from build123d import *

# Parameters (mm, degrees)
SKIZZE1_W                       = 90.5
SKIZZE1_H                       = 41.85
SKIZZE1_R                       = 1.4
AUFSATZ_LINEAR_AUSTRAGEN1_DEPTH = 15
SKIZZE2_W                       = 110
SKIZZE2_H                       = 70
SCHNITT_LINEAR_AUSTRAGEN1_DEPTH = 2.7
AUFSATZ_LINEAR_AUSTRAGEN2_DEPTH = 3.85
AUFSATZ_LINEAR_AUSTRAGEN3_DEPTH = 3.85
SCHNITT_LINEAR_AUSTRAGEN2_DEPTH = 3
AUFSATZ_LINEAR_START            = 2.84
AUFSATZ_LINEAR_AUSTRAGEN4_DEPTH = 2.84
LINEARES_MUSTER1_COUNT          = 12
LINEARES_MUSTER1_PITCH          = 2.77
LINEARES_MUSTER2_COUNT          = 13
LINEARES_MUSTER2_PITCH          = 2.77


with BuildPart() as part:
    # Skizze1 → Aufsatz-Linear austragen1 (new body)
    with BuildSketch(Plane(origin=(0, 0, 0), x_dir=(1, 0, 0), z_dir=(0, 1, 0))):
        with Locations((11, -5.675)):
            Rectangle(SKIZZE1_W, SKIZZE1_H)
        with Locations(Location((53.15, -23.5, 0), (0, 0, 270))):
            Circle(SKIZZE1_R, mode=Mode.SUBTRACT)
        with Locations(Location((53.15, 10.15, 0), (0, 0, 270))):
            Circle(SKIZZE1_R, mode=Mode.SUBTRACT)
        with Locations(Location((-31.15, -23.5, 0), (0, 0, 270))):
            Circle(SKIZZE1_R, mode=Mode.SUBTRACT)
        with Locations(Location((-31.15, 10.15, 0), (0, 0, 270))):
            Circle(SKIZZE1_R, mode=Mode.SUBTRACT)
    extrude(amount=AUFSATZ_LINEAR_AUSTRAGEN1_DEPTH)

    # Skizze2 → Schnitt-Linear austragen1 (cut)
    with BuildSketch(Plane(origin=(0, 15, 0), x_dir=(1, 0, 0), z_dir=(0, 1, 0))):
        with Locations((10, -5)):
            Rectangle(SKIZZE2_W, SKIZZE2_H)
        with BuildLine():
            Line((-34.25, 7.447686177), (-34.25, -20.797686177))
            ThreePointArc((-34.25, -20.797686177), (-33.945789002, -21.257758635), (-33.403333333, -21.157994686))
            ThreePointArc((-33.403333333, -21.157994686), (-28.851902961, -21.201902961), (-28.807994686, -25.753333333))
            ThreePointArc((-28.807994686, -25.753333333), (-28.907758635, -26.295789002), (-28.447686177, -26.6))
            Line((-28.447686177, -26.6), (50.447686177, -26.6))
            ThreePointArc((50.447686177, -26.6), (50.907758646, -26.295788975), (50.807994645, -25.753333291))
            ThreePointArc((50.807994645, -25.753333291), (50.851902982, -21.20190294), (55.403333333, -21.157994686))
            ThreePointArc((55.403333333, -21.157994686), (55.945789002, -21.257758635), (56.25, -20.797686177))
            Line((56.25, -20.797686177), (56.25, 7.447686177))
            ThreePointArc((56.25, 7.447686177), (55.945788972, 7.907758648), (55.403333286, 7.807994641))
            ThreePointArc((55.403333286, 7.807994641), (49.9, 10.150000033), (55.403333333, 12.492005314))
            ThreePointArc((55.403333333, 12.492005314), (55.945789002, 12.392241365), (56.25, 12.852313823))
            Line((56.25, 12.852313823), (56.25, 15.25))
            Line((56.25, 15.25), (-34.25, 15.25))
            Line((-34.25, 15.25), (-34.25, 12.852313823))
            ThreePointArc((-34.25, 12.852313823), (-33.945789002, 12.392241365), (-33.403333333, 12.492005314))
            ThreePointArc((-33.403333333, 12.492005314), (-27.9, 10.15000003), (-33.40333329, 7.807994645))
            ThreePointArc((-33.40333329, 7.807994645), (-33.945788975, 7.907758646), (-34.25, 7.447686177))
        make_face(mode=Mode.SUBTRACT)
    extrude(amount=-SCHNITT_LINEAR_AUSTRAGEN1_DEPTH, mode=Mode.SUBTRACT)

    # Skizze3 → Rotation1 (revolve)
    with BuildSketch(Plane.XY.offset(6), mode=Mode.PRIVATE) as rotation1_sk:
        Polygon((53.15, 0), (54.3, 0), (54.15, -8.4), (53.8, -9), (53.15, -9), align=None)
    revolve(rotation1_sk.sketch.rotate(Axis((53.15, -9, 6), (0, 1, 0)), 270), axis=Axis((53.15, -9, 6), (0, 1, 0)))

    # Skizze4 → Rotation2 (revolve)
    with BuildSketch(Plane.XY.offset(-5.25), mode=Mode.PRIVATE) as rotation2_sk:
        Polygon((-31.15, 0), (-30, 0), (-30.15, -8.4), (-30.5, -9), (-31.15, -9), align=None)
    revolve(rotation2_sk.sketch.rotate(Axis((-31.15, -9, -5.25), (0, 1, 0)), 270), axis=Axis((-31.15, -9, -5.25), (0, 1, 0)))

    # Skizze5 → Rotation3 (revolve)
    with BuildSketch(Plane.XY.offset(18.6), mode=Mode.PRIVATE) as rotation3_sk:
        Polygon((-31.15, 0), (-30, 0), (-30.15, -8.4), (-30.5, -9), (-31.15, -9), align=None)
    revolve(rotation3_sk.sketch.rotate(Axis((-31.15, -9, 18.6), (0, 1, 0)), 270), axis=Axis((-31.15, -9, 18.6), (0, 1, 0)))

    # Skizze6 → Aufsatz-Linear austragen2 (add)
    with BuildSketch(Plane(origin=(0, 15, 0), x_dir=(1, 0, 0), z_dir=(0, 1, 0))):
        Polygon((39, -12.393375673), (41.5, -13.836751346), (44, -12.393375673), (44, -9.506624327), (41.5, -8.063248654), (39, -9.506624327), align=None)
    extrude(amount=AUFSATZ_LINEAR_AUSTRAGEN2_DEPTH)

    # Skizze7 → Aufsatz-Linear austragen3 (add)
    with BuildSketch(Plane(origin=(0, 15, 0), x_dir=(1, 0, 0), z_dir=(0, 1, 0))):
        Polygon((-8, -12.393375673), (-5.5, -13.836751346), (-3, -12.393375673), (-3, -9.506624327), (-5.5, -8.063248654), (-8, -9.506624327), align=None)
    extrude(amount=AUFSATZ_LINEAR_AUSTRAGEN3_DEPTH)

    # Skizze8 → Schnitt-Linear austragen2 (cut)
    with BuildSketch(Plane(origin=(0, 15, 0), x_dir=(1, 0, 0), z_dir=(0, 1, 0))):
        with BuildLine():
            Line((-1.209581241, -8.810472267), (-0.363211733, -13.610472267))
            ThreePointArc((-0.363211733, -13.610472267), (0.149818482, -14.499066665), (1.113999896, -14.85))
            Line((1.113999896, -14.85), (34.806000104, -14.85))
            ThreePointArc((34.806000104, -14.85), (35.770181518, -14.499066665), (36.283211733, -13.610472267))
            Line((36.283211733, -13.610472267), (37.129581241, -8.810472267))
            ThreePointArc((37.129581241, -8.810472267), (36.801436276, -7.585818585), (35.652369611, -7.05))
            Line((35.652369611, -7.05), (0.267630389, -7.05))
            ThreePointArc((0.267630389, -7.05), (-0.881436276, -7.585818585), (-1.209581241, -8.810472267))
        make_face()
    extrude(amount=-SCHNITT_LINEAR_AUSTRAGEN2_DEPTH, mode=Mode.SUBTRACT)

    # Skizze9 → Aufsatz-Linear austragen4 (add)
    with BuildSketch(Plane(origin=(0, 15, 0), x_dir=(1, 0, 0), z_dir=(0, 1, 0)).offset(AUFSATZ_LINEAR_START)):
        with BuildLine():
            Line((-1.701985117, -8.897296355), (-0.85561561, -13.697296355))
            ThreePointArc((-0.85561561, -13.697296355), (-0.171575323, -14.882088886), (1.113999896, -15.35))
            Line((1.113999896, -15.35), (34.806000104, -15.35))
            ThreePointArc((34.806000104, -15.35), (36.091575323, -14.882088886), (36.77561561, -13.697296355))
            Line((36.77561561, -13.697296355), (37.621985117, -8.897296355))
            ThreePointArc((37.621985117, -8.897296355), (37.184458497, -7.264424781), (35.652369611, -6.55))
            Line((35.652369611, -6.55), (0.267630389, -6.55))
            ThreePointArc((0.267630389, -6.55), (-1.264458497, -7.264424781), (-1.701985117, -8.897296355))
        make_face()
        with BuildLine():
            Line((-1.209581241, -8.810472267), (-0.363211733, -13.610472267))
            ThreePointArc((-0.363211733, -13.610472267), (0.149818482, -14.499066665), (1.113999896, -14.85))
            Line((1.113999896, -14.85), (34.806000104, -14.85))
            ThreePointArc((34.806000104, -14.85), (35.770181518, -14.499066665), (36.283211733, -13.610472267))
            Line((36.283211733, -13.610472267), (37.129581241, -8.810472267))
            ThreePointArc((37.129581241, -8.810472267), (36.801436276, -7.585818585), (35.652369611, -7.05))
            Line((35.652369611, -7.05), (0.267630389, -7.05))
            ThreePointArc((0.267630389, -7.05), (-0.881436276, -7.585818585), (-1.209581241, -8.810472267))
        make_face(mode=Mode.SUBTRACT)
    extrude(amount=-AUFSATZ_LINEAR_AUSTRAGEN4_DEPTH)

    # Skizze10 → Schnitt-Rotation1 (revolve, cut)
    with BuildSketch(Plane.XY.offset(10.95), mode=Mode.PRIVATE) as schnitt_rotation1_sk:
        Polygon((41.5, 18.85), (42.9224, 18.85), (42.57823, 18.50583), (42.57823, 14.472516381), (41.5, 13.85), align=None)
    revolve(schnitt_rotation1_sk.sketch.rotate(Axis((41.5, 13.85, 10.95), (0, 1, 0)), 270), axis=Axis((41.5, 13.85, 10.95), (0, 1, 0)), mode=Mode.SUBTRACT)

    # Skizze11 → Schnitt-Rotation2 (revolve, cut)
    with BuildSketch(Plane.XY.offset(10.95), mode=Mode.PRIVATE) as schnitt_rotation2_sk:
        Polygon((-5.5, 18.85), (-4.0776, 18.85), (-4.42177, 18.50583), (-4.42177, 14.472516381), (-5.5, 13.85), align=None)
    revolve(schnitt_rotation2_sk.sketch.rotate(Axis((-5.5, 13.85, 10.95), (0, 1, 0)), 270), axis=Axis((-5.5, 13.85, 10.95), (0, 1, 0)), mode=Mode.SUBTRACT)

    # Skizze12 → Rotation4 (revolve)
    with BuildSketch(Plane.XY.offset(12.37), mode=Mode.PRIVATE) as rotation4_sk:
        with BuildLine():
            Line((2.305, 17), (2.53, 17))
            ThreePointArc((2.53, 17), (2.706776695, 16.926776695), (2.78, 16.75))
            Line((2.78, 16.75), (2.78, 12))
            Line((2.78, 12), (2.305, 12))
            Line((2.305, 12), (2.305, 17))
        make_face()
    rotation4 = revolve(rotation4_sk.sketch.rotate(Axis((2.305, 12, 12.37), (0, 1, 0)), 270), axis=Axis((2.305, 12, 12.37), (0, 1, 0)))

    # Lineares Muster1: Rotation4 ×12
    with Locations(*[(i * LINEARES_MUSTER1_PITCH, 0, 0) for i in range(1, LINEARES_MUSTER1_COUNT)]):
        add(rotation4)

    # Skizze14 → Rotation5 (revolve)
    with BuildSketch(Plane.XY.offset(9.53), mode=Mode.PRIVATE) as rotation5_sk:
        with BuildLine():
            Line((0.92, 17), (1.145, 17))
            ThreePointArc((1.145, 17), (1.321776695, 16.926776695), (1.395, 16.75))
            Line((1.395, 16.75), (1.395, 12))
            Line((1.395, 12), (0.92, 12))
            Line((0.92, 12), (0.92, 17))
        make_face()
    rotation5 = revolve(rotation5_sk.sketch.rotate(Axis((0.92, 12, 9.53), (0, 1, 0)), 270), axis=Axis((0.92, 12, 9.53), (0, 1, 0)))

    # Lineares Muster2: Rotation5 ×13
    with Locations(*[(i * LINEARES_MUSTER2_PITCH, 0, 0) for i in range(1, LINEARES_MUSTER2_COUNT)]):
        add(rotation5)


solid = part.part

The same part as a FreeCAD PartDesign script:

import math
import FreeCAD as App
import Part
import Sketcher
Q = App.Units.Quantity


def add_polygon(sketch, points):
    """Adds a closed chain of lines whose ends are joined by coincident constraints."""
    first, n = sketch.GeometryCount, len(points)
    for a, b in zip(points, points[1:] + points[:1]):
        sketch.addGeometry(Part.LineSegment(App.Vector(*a, 0), App.Vector(*b, 0)), False)
    for i in range(n):
        sketch.addConstraint(Sketcher.Constraint("Coincident", first + i, 2, first + (i + 1) % n, 1))

doc = App.newDocument("Part")
body = doc.addObject("PartDesign::Body", "Body")

# Sketch on XZ plane
sketch1 = body.newObject("Sketcher::SketchObject", "Sketch")
sketch1.AttachmentSupport = (doc.getObject("XZ_Plane"), [""])
sketch1.MapMode = "FlatFace"
add_polygon(sketch1, [(-34.2, -15.2), (-34.2, 26.6), (56.2, 26.6), (56.2, -15.2)])  # lines 0-3
sketch1.addGeometry(Part.Circle(App.Vector(-31.1, 23.5, 0), App.Vector(0, 0, 1), 1.4), False)  # 4
sketch1.addGeometry(Part.Circle(App.Vector(53.1, 23.5, 0), App.Vector(0, 0, 1), 1.4), False)  # 5
sketch1.addGeometry(Part.Circle(App.Vector(-31.1, -10.2, 0), App.Vector(0, 0, 1), 1.4), False)  # 6
sketch1.addGeometry(Part.Circle(App.Vector(53.1, -10.2, 0), App.Vector(0, 0, 1), 1.4), False)  # 7
sketch1.addConstraint([
    Sketcher.Constraint("Vertical", 0),
    Sketcher.Constraint("Horizontal", 1),
    Sketcher.Constraint("Vertical", 2),
    Sketcher.Constraint("Horizontal", 3),
    Sketcher.Constraint("Equal", 4, 5),
    Sketcher.Constraint("Equal", 5, 6),
    Sketcher.Constraint("Equal", 6, 7),
    Sketcher.Constraint("Horizontal", 4, 3, 5, 3),
    Sketcher.Constraint("Horizontal", 6, 3, 7, 3),
    Sketcher.Constraint("Vertical", 4, 3, 6, 3),
    Sketcher.Constraint("Vertical", 5, 3, 7, 3),
    Sketcher.Constraint("Diameter", 4, Q("2.8 mm")),
    Sketcher.Constraint("DistanceX", 1, 1, 1, 2, Q("90.5 mm")),
    Sketcher.Constraint("DistanceY", 0, 1, 0, 2, Q("41.85 mm")),
    Sketcher.Constraint("DistanceY", -1, 1, 4, 3, Q("23.5 mm")),
    Sketcher.Constraint("DistanceY", -1, 1, 0, 2, Q("26.6 mm")),
    Sketcher.Constraint("DistanceX", 4, 3, 5, 3, Q("84.3 mm")),
    Sketcher.Constraint("DistanceX", 0, 2, 4, 3, Q("3.1 mm")),
    Sketcher.Constraint("DistanceY", 2, 2, 7, 3, Q("5.1 mm")),
    Sketcher.Constraint("DistanceX", 4, 3, -1, 1, Q("31.15 mm")),
])
pad1 = body.newObject("PartDesign::Pad", "Pad")
pad1.Profile = sketch1
pad1.Length = 15
pad1.Reversed = True

# Sketch on XZ plane
sketch2 = body.newObject("Sketcher::SketchObject", "Sketch001")
sketch2.AttachmentSupport = (doc.getObject("XZ_Plane"), [""])
sketch2.MapMode = "FlatFace"
sketch2.AttachmentOffset = App.Placement(App.Vector(0, 0, -15), App.Rotation())
add_polygon(sketch2, [(-45, -30), (-45, 40), (65, 40), (65, -30)])  # lines 0-3
sketch2.addGeometry(Part.LineSegment(App.Vector(-34.2, 20.8, 0), App.Vector(-34.2, -7.4, 0)), False)  # 4
sketch2.addGeometry(Part.ArcOfCircle(Part.Circle(App.Vector(-33.8, -7.4, 0), App.Vector(0, 0, 1), 0.5), math.radians(-180), math.radians(-46)), False)  # 5
sketch2.addGeometry(Part.ArcOfCircle(Part.Circle(App.Vector(-31.1, -10.2, 0), App.Vector(0, 0, 1), 3.2), math.radians(-134), math.radians(134)), False)  # 6
sketch2.addGeometry(Part.ArcOfCircle(Part.Circle(App.Vector(-33.8, -12.9, 0), App.Vector(0, 0, 1), 0.5), math.radians(46), math.radians(180)), False)  # 7
sketch2.addGeometry(Part.LineSegment(App.Vector(-34.2, -12.9, 0), App.Vector(-34.2, -15.2, 0)), False)  # 8
sketch2.addGeometry(Part.LineSegment(App.Vector(-34.2, -15.2, 0), App.Vector(56.2, -15.2, 0)), False)  # 9
sketch2.addGeometry(Part.LineSegment(App.Vector(56.2, -15.2, 0), App.Vector(56.2, -12.9, 0)), False)  # 10
sketch2.addGeometry(Part.ArcOfCircle(Part.Circle(App.Vector(55.8, -12.9, 0), App.Vector(0, 0, 1), 0.5), math.radians(0), math.radians(134)), False)  # 11
sketch2.addGeometry(Part.ArcOfCircle(Part.Circle(App.Vector(53.1, -10.2, 0), App.Vector(0, 0, 1), 3.2), math.radians(46), math.radians(314)), False)  # 12
sketch2.addGeometry(Part.ArcOfCircle(Part.Circle(App.Vector(55.8, -7.4, 0), App.Vector(0, 0, 1), 0.5), math.radians(-134), math.radians(0)), False)  # 13
sketch2.addGeometry(Part.LineSegment(App.Vector(56.2, -7.4, 0), App.Vector(56.2, 20.8, 0)), False)  # 14
sketch2.addGeometry(Part.ArcOfCircle(Part.Circle(App.Vector(55.8, 20.8, 0), App.Vector(0, 0, 1), 0.5), math.radians(0), math.radians(134)), False)  # 15
sketch2.addGeometry(Part.ArcOfCircle(Part.Circle(App.Vector(53.1, 23.5, 0), App.Vector(0, 0, 1), 3.2), math.radians(136), math.radians(314)), False)  # 16
sketch2.addGeometry(Part.ArcOfCircle(Part.Circle(App.Vector(50.4, 26.1, 0), App.Vector(0, 0, 1), 0.5), math.radians(-44), math.radians(90)), False)  # 17
sketch2.addGeometry(Part.LineSegment(App.Vector(50.4, 26.6, 0), App.Vector(-28.4, 26.6, 0)), False)  # 18
sketch2.addGeometry(Part.ArcOfCircle(Part.Circle(App.Vector(-28.4, 26.1, 0), App.Vector(0, 0, 1), 0.5), math.radians(90), math.radians(224)), False)  # 19
sketch2.addGeometry(Part.ArcOfCircle(Part.Circle(App.Vector(-31.1, 23.5, 0), App.Vector(0, 0, 1), 3.2), math.radians(-134), math.radians(44)), False)  # 20
sketch2.addGeometry(Part.ArcOfCircle(Part.Circle(App.Vector(-33.8, 20.8, 0), App.Vector(0, 0, 1), 0.5), math.radians(46), math.radians(180)), False)  # 21
sketch2.addConstraint([
    Sketcher.Constraint("Tangent", 4, 2, 5, 1),
    Sketcher.Constraint("Tangent", 5, 2, 6, 2),
    Sketcher.Constraint("Tangent", 6, 1, 7, 1),
    Sketcher.Constraint("Tangent", 7, 2, 8, 1),
    Sketcher.Constraint("Coincident", 8, 2, 9, 1),
    Sketcher.Constraint("Coincident", 9, 2, 10, 1),
    Sketcher.Constraint("Tangent", 10, 2, 11, 1),
    Sketcher.Constraint("Tangent", 11, 2, 12, 2),
    Sketcher.Constraint("Tangent", 12, 1, 13, 1),
    Sketcher.Constraint("Tangent", 13, 2, 14, 1),
    Sketcher.Constraint("Tangent", 14, 2, 15, 1),
    Sketcher.Constraint("Tangent", 15, 2, 16, 2),
    Sketcher.Constraint("Tangent", 16, 1, 17, 1),
    Sketcher.Constraint("Tangent", 17, 2, 18, 1),
    Sketcher.Constraint("Tangent", 18, 2, 19, 1),
    Sketcher.Constraint("Tangent", 19, 2, 20, 2),
    Sketcher.Constraint("Tangent", 20, 1, 21, 1),
    Sketcher.Constraint("Tangent", 21, 2, 4, 1),
    Sketcher.Constraint("Vertical", 0),
    Sketcher.Constraint("Horizontal", 1),
    Sketcher.Constraint("Vertical", 2),
    Sketcher.Constraint("Horizontal", 3),
    Sketcher.Constraint("Vertical", 4),
    Sketcher.Constraint("Vertical", 8),
    Sketcher.Constraint("Horizontal", 9),
    Sketcher.Constraint("Vertical", 10),
    Sketcher.Constraint("Vertical", 14),
    Sketcher.Constraint("Horizontal", 18),
    Sketcher.Constraint("Equal", 5, 7),
    Sketcher.Constraint("Equal", 7, 11),
    Sketcher.Constraint("Equal", 6, 12),
    Sketcher.Constraint("Equal", 11, 13),
    Sketcher.Constraint("Equal", 13, 15),
    Sketcher.Constraint("Equal", 12, 16),
    Sketcher.Constraint("Equal", 15, 17),
    Sketcher.Constraint("Equal", 17, 19),
    Sketcher.Constraint("Equal", 16, 20),
    Sketcher.Constraint("Equal", 19, 21),
    Sketcher.Constraint("Horizontal", 7, 3, 11, 3),
    Sketcher.Constraint("Horizontal", 6, 3, 12, 3),
    Sketcher.Constraint("Horizontal", 5, 3, 13, 3),
    Sketcher.Constraint("Horizontal", 16, 3, 20, 3),
    Sketcher.Constraint("Horizontal", 15, 3, 21, 3),
    Sketcher.Constraint("Vertical", 5, 3, 7, 3),
    Sketcher.Constraint("Vertical", 12, 3, 16, 3),
    Sketcher.Constraint("Radius", 5, Q("0.5 mm")),
    Sketcher.Constraint("DistanceX", 1, 1, 1, 2, Q("110 mm")),
    Sketcher.Constraint("DistanceY", 0, 1, 0, 2, Q("70 mm")),
    Sketcher.Constraint("Radius", 6, Q("3.25 mm")),
    Sketcher.Constraint("DistanceX", 9, 1, 9, 2, Q("90.5 mm")),
    Sketcher.Constraint("DistanceX", 0, 2, -1, 1, Q("45 mm")),
    Sketcher.Constraint("DistanceY", -1, 1, 0, 2, Q("40 mm")),
    Sketcher.Constraint("DistanceY", -1, 1, 16, 3, Q("23.5 mm")),
    Sketcher.Constraint("DistanceY", -1, 1, 17, 3, Q("26.1 mm")),
    Sketcher.Constraint("DistanceX", 5, 3, 6, 3, Q("2.6 mm")),
    Sketcher.Constraint("DistanceY", 8, 2, 6, 3, Q("5.1 mm")),
    Sketcher.Constraint("DistanceX", 5, 3, -1, 1, Q("33.75 mm")),
    Sketcher.Constraint("DistanceY", 6, 3, -1, 1, Q("10.15 mm")),
])
pocket1 = body.newObject("PartDesign::Pocket", "Pocket")
pocket1.Profile = sketch2
pocket1.Length = 2.7
pocket1.Reversed = True

# Sketch on XY plane
sketch3 = body.newObject("Sketcher::SketchObject", "Sketch002")
sketch3.AttachmentSupport = (doc.getObject("XY_Plane"), [""])
sketch3.MapMode = "FlatFace"
sketch3.AttachmentOffset = App.Placement(App.Vector(0, 0, 6), App.Rotation())
add_polygon(sketch3, [(54.3, 0), (53.1, 0), (53.1, -9), (53.8, -9), (54.1, -8.4)])  # lines 0-4
sketch3.addGeometry(Part.LineSegment(App.Vector(53.1, -9, 0), App.Vector(53.1, 0, 0)), True)  # axis
sketch3.addConstraint([
    Sketcher.Constraint("Horizontal", 0),
    Sketcher.Constraint("Vertical", 1),
    Sketcher.Constraint("Horizontal", 2),
    Sketcher.Constraint("Vertical", 5),
    Sketcher.Constraint("Coincident", 5, 1, 1, 2),
    Sketcher.Constraint("PointOnObject", 0, 2, -1),
    Sketcher.Constraint("PointOnObject", 5, 2, -1),
    Sketcher.Constraint("DistanceY", 1, 2, 1, 1, Q("9 mm")),
    Sketcher.Constraint("DistanceX", 1, 2, 3, 2, Q("1 mm")),
    Sketcher.Constraint("DistanceX", 0, 2, 0, 1, Q("1.15 mm")),
    Sketcher.Constraint("DistanceX", 2, 1, 2, 2, Q("0.65 mm")),
    Sketcher.Constraint("DistanceX", -1, 1, 2, 2, Q("53.8 mm")),
    Sketcher.Constraint("DistanceY", 3, 2, -1, 1, Q("8.4 mm")),
])
revolution = body.newObject("PartDesign::Revolution", "Revolution")
revolution.Profile = sketch3
revolution.ReferenceAxis = (sketch3, ["Axis0"])
revolution.Angle = 360

# Sketch on XY plane
sketch4 = body.newObject("Sketcher::SketchObject", "Sketch003")
sketch4.AttachmentSupport = (doc.getObject("XY_Plane"), [""])
sketch4.MapMode = "FlatFace"
sketch4.AttachmentOffset = App.Placement(App.Vector(0, 0, -5.25), App.Rotation())
add_polygon(sketch4, [(-30, 0), (-31.1, 0), (-31.1, -9), (-30.5, -9), (-30.1, -8.4)])  # lines 0-4
sketch4.addGeometry(Part.LineSegment(App.Vector(-31.1, -9, 0), App.Vector(-31.1, 0, 0)), True)  # axis
sketch4.addConstraint([
    Sketcher.Constraint("Horizontal", 0),
    Sketcher.Constraint("Vertical", 1),
    Sketcher.Constraint("Horizontal", 2),
    Sketcher.Constraint("Vertical", 5),
    Sketcher.Constraint("Coincident", 5, 1, 1, 2),
    Sketcher.Constraint("PointOnObject", 0, 2, -1),
    Sketcher.Constraint("PointOnObject", 5, 2, -1),
    Sketcher.Constraint("DistanceY", 1, 2, 1, 1, Q("9 mm")),
    Sketcher.Constraint("DistanceX", 4, 2, -1, 1, Q("30 mm")),
    Sketcher.Constraint("DistanceX", 1, 2, 3, 2, Q("1 mm")),
    Sketcher.Constraint("DistanceX", 0, 2, 0, 1, Q("1.15 mm")),
    Sketcher.Constraint("DistanceX", 2, 1, 2, 2, Q("0.65 mm")),
    Sketcher.Constraint("DistanceY", 3, 2, -1, 1, Q("8.4 mm")),
])
revolution2 = body.newObject("PartDesign::Revolution", "Revolution001")
revolution2.Profile = sketch4
revolution2.ReferenceAxis = (sketch4, ["Axis0"])
revolution2.Angle = 360

# Sketch on XY plane
sketch5 = body.newObject("Sketcher::SketchObject", "Sketch004")
sketch5.AttachmentSupport = (doc.getObject("XY_Plane"), [""])
sketch5.MapMode = "FlatFace"
sketch5.AttachmentOffset = App.Placement(App.Vector(0, 0, 18.6), App.Rotation())
add_polygon(sketch5, [(-30, 0), (-31.1, 0), (-31.1, -9), (-30.5, -9), (-30.1, -8.4)])  # lines 0-4
sketch5.addGeometry(Part.LineSegment(App.Vector(-31.1, -9, 0), App.Vector(-31.1, 0, 0)), True)  # axis
sketch5.addConstraint([
    Sketcher.Constraint("Horizontal", 0),
    Sketcher.Constraint("Vertical", 1),
    Sketcher.Constraint("Horizontal", 2),
    Sketcher.Constraint("Vertical", 5),
    Sketcher.Constraint("Coincident", 5, 1, 1, 2),
    Sketcher.Constraint("PointOnObject", 0, 2, -1),
    Sketcher.Constraint("PointOnObject", 5, 2, -1),
    Sketcher.Constraint("DistanceY", 1, 2, 1, 1, Q("9 mm")),
    Sketcher.Constraint("DistanceX", 4, 2, -1, 1, Q("30 mm")),
    Sketcher.Constraint("DistanceX", 1, 2, 3, 2, Q("1 mm")),
    Sketcher.Constraint("DistanceX", 0, 2, 0, 1, Q("1.15 mm")),
    Sketcher.Constraint("DistanceX", 2, 1, 2, 2, Q("0.65 mm")),
    Sketcher.Constraint("DistanceY", 3, 2, -1, 1, Q("8.4 mm")),
])
revolution3 = body.newObject("PartDesign::Revolution", "Revolution002")
revolution3.Profile = sketch5
revolution3.ReferenceAxis = (sketch5, ["Axis0"])
revolution3.Angle = 360

# Sketch on XZ plane
sketch6 = body.newObject("Sketcher::SketchObject", "Sketch005")
sketch6.AttachmentSupport = (doc.getObject("XZ_Plane"), [""])
sketch6.MapMode = "FlatFace"
sketch6.AttachmentOffset = App.Placement(App.Vector(0, 0, -15), App.Rotation())
add_polygon(sketch6, [(39, 12.4), (41.5, 13.8), (44, 12.4), (44, 9.5), (41.5, 8.1), (39, 9.5)])  # lines 0-5
sketch6.addConstraint([
    Sketcher.Constraint("Vertical", 2),
    Sketcher.Constraint("Vertical", 5),
    Sketcher.Constraint("Parallel", 0, 3),
    Sketcher.Constraint("Parallel", 1, 4),
    Sketcher.Constraint("Horizontal", 2, 2, 4, 2),
    Sketcher.Constraint("Horizontal", 1, 2, 5, 2),
    Sketcher.Constraint("Vertical", 0, 2, 3, 2),
    Sketcher.Constraint("Angle", 0, Q("30 deg")),
    Sketcher.Constraint("DistanceX", -1, 1, 1, 2, Q("44 mm")),
    Sketcher.Constraint("DistanceX", -1, 1, 4, 2, Q("39 mm")),
    Sketcher.Constraint("DistanceY", 2, 2, 2, 1, Q("2.886751 mm")),
    Sketcher.Constraint("DistanceY", -1, 1, 0, 2, Q("13.836751 mm")),
])
pad2 = body.newObject("PartDesign::Pad", "Pad001")
pad2.Profile = sketch6
pad2.Length = 3.85
pad2.Reversed = True

# Sketch on XZ plane
sketch7 = body.newObject("Sketcher::SketchObject", "Sketch006")
sketch7.AttachmentSupport = (doc.getObject("XZ_Plane"), [""])
sketch7.MapMode = "FlatFace"
sketch7.AttachmentOffset = App.Placement(App.Vector(0, 0, -15), App.Rotation())
add_polygon(sketch7, [(-8, 12.4), (-5.5, 13.8), (-3, 12.4), (-3, 9.5), (-5.5, 8.1), (-8, 9.5)])  # lines 0-5
sketch7.addConstraint([
    Sketcher.Constraint("Vertical", 2),
    Sketcher.Constraint("Vertical", 5),
    Sketcher.Constraint("Parallel", 0, 3),
    Sketcher.Constraint("Parallel", 1, 4),
    Sketcher.Constraint("Horizontal", 2, 2, 4, 2),
    Sketcher.Constraint("Horizontal", 1, 2, 5, 2),
    Sketcher.Constraint("Vertical", 0, 2, 3, 2),
    Sketcher.Constraint("Angle", 0, Q("30 deg")),
    Sketcher.Constraint("DistanceX", 1, 2, -1, 1, Q("3 mm")),
    Sketcher.Constraint("DistanceX", 4, 2, -1, 1, Q("8 mm")),
    Sketcher.Constraint("DistanceY", 2, 2, 2, 1, Q("2.886751 mm")),
    Sketcher.Constraint("DistanceY", -1, 1, 0, 2, Q("13.836751 mm")),
])
pad3 = body.newObject("PartDesign::Pad", "Pad002")
pad3.Profile = sketch7
pad3.Length = 3.85
pad3.Reversed = True

# Sketch on XZ plane
sketch8 = body.newObject("Sketcher::SketchObject", "Sketch007")
sketch8.AttachmentSupport = (doc.getObject("XZ_Plane"), [""])
sketch8.MapMode = "FlatFace"
sketch8.AttachmentOffset = App.Placement(App.Vector(0, 0, -15), App.Rotation())
sketch8.addGeometry([
    Part.LineSegment(App.Vector(-1.2, 8.8, 0), App.Vector(-0.4, 13.6, 0)),  # 0
    Part.ArcOfCircle(Part.Circle(App.Vector(1.1, 13.4, 0), App.Vector(0, 0, 1), 1.5), math.radians(90), math.radians(170)),  # 1
    Part.LineSegment(App.Vector(1.1, 14.8, 0), App.Vector(34.8, 14.8, 0)),  # 2
    Part.ArcOfCircle(Part.Circle(App.Vector(34.8, 13.4, 0), App.Vector(0, 0, 1), 1.5), math.radians(10), math.radians(90)),  # 3
    Part.LineSegment(App.Vector(36.3, 13.6, 0), App.Vector(37.1, 8.8, 0)),  # 4
    Part.ArcOfCircle(Part.Circle(App.Vector(35.7, 8.6, 0), App.Vector(0, 0, 1), 1.5), math.radians(-90), math.radians(10)),  # 5
    Part.LineSegment(App.Vector(35.7, 7, 0), App.Vector(0.3, 7, 0)),  # 6
    Part.ArcOfCircle(Part.Circle(App.Vector(0.3, 8.6, 0), App.Vector(0, 0, 1), 1.5), math.radians(170), math.radians(270)),  # 7
], False)
sketch8.addConstraint([
    Sketcher.Constraint("Tangent", 0, 2, 1, 2),
    Sketcher.Constraint("Tangent", 1, 1, 2, 1),
    Sketcher.Constraint("Tangent", 2, 2, 3, 2),
    Sketcher.Constraint("Tangent", 3, 1, 4, 1),
    Sketcher.Constraint("Tangent", 4, 2, 5, 2),
    Sketcher.Constraint("Tangent", 5, 1, 6, 1),
    Sketcher.Constraint("Tangent", 6, 2, 7, 2),
    Sketcher.Constraint("Tangent", 7, 1, 0, 1),
    Sketcher.Constraint("Horizontal", 2),
    Sketcher.Constraint("Horizontal", 6),
    Sketcher.Constraint("Equal", 1, 3),
    Sketcher.Constraint("Equal", 3, 5),
    Sketcher.Constraint("Equal", 5, 7),
    Sketcher.Constraint("Horizontal", 0, 2, 3, 1),
    Sketcher.Constraint("Radius", 1, Q("1.5 mm")),
    Sketcher.Constraint("Angle", 0, Q("80 deg")),
    Sketcher.Constraint("DistanceY", 5, 3, 3, 3, Q("4.8 mm")),
    Sketcher.Constraint("DistanceX", 2, 1, 2, 2, Q("33.692 mm")),
    Sketcher.Constraint("DistanceY", -1, 1, 1, 3, Q("13.35 mm")),
    Sketcher.Constraint("DistanceX", -1, 1, 1, 3, Q("1.114 mm")),
])
pocket2 = body.newObject("PartDesign::Pocket", "Pocket001")
pocket2.Profile = sketch8
pocket2.Length = 3
pocket2.Reversed = True

# Sketch on XZ plane
sketch9 = body.newObject("Sketcher::SketchObject", "Sketch008")
sketch9.AttachmentSupport = (doc.getObject("XZ_Plane"), [""])
sketch9.MapMode = "FlatFace"
sketch9.AttachmentOffset = App.Placement(App.Vector(0, 0, -17.84), App.Rotation())
sketch9.addGeometry([
    Part.LineSegment(App.Vector(-1.7, 8.9, 0), App.Vector(-0.9, 13.7, 0)),  # 0
    Part.ArcOfCircle(Part.Circle(App.Vector(1.1, 13.3, 0), App.Vector(0, 0, 1), 2), math.radians(90), math.radians(170)),  # 1
    Part.LineSegment(App.Vector(1.1, 15.3, 0), App.Vector(34.8, 15.3, 0)),  # 2
    Part.ArcOfCircle(Part.Circle(App.Vector(34.8, 13.3, 0), App.Vector(0, 0, 1), 2), math.radians(10), math.radians(90)),  # 3
    Part.LineSegment(App.Vector(36.8, 13.7, 0), App.Vector(37.6, 8.9, 0)),  # 4
    Part.ArcOfCircle(Part.Circle(App.Vector(35.7, 8.6, 0), App.Vector(0, 0, 1), 2), math.radians(-90), math.radians(10)),  # 5
    Part.LineSegment(App.Vector(35.7, 6.5, 0), App.Vector(0.3, 6.5, 0)),  # 6
    Part.ArcOfCircle(Part.Circle(App.Vector(0.3, 8.6, 0), App.Vector(0, 0, 1), 2), math.radians(170), math.radians(270)),  # 7
    Part.LineSegment(App.Vector(-0.4, 13.6, 0), App.Vector(-1.2, 8.8, 0)),  # 8
    Part.ArcOfCircle(Part.Circle(App.Vector(0.3, 8.6, 0), App.Vector(0, 0, 1), 1.5), math.radians(170), math.radians(270)),  # 9
    Part.LineSegment(App.Vector(0.3, 7, 0), App.Vector(35.7, 7, 0)),  # 10
    Part.ArcOfCircle(Part.Circle(App.Vector(35.7, 8.6, 0), App.Vector(0, 0, 1), 1.5), math.radians(-90), math.radians(10)),  # 11
    Part.LineSegment(App.Vector(37.1, 8.8, 0), App.Vector(36.3, 13.6, 0)),  # 12
    Part.ArcOfCircle(Part.Circle(App.Vector(34.8, 13.4, 0), App.Vector(0, 0, 1), 1.5), math.radians(10), math.radians(90)),  # 13
    Part.LineSegment(App.Vector(34.8, 14.8, 0), App.Vector(1.1, 14.8, 0)),  # 14
    Part.ArcOfCircle(Part.Circle(App.Vector(1.1, 13.4, 0), App.Vector(0, 0, 1), 1.5), math.radians(90), math.radians(170)),  # 15
], False)
sketch9.addConstraint([
    Sketcher.Constraint("Tangent", 0, 2, 1, 2),
    Sketcher.Constraint("Tangent", 1, 1, 2, 1),
    Sketcher.Constraint("Tangent", 2, 2, 3, 2),
    Sketcher.Constraint("Tangent", 3, 1, 4, 1),
    Sketcher.Constraint("Tangent", 4, 2, 5, 2),
    Sketcher.Constraint("Tangent", 5, 1, 6, 1),
    Sketcher.Constraint("Tangent", 6, 2, 7, 2),
    Sketcher.Constraint("Tangent", 7, 1, 0, 1),
    Sketcher.Constraint("Tangent", 8, 2, 9, 1),
    Sketcher.Constraint("Tangent", 9, 2, 10, 1),
    Sketcher.Constraint("Tangent", 10, 2, 11, 1),
    Sketcher.Constraint("Tangent", 11, 2, 12, 1),
    Sketcher.Constraint("Tangent", 12, 2, 13, 1),
    Sketcher.Constraint("Tangent", 13, 2, 14, 1),
    Sketcher.Constraint("Tangent", 14, 2, 15, 1),
    Sketcher.Constraint("Tangent", 15, 2, 8, 1),
    Sketcher.Constraint("Horizontal", 2),
    Sketcher.Constraint("Horizontal", 6),
    Sketcher.Constraint("Horizontal", 10),
    Sketcher.Constraint("Horizontal", 14),
    Sketcher.Constraint("Coincident", 9, 3, 7, 3),
    Sketcher.Constraint("Coincident", 11, 3, 5, 3),
    Sketcher.Constraint("Coincident", 13, 3, 3, 3),
    Sketcher.Constraint("Coincident", 15, 3, 1, 3),
    Sketcher.Constraint("Equal", 1, 3),
    Sketcher.Constraint("Equal", 3, 5),
    Sketcher.Constraint("Equal", 5, 7),
    Sketcher.Constraint("Equal", 11, 13),
    Sketcher.Constraint("Horizontal", 0, 2, 3, 1),
    Sketcher.Constraint("Radius", 1, Q("2 mm")),
    Sketcher.Constraint("Radius", 9, Q("1.5 mm")),
    Sketcher.Constraint("Angle", 0, Q("80 deg")),
    Sketcher.Constraint("DistanceY", 5, 3, 3, 3, Q("4.8 mm")),
    Sketcher.Constraint("DistanceX", 2, 1, 2, 2, Q("33.692 mm")),
    Sketcher.Constraint("DistanceY", -1, 1, 1, 3, Q("13.35 mm")),
    Sketcher.Constraint("DistanceX", -1, 1, 1, 3, Q("1.114 mm")),
])
pad4 = body.newObject("PartDesign::Pad", "Pad003")
pad4.Profile = sketch9
pad4.Length = 2.84

# Sketch on XY plane
sketch10 = body.newObject("Sketcher::SketchObject", "Sketch009")
sketch10.AttachmentSupport = (doc.getObject("XY_Plane"), [""])
sketch10.MapMode = "FlatFace"
sketch10.AttachmentOffset = App.Placement(App.Vector(0, 0, 10.95), App.Rotation())
add_polygon(sketch10, [(42.92, 18.85), (41.5, 18.85), (41.5, 13.85), (42.58, 14.47), (42.58, 18.51)])  # lines 0-4
sketch10.addGeometry(Part.LineSegment(App.Vector(41.5, 13.85, 0), App.Vector(41.5, 18.85, 0)), True)  # axis
sketch10.addConstraint([
    Sketcher.Constraint("Horizontal", 0),
    Sketcher.Constraint("Vertical", 1),
    Sketcher.Constraint("Vertical", 3),
    Sketcher.Constraint("Vertical", 5),
    Sketcher.Constraint("Coincident", 5, 1, 1, 2),
    Sketcher.Constraint("Horizontal", 4, 2, 5, 2),
    Sketcher.Constraint("DistanceY", 1, 2, 1, 1, Q("5 mm")),
    Sketcher.Constraint("Angle", 2, Q("30 deg")),
    Sketcher.Constraint("Angle", 4, Q("45 deg")),
    Sketcher.Constraint("DistanceX", -1, 1, 0, 2, Q("41.5 mm")),
    Sketcher.Constraint("DistanceY", -1, 1, 0, 2, Q("18.85 mm")),
    Sketcher.Constraint("DistanceX", 0, 2, 0, 1, Q("1.4224 mm")),
    Sketcher.Constraint("Distance", 4, Q("0.48673 mm")),
])
groove = body.newObject("PartDesign::Groove", "Groove")
groove.Profile = sketch10
groove.ReferenceAxis = (sketch10, ["Axis0"])
groove.Angle = 360

# Sketch on XY plane
sketch11 = body.newObject("Sketcher::SketchObject", "Sketch010")
sketch11.AttachmentSupport = (doc.getObject("XY_Plane"), [""])
sketch11.MapMode = "FlatFace"
sketch11.AttachmentOffset = App.Placement(App.Vector(0, 0, 10.95), App.Rotation())
add_polygon(sketch11, [(-4.08, 18.85), (-5.5, 18.85), (-5.5, 13.85), (-4.42, 14.47), (-4.42, 18.51)])  # lines 0-4
sketch11.addGeometry(Part.LineSegment(App.Vector(-5.5, 13.85, 0), App.Vector(-5.5, 18.85, 0)), True)  # axis
sketch11.addConstraint([
    Sketcher.Constraint("Horizontal", 0),
    Sketcher.Constraint("Vertical", 1),
    Sketcher.Constraint("Vertical", 3),
    Sketcher.Constraint("Vertical", 5),
    Sketcher.Constraint("Coincident", 5, 1, 1, 2),
    Sketcher.Constraint("Horizontal", 4, 2, 5, 2),
    Sketcher.Constraint("DistanceY", 1, 2, 1, 1, Q("5 mm")),
    Sketcher.Constraint("Angle", 2, Q("30 deg")),
    Sketcher.Constraint("Angle", 4, Q("45 deg")),
    Sketcher.Constraint("DistanceX", 0, 2, -1, 1, Q("5.5 mm")),
    Sketcher.Constraint("DistanceY", -1, 1, 0, 2, Q("18.85 mm")),
    Sketcher.Constraint("DistanceX", 0, 2, 0, 1, Q("1.4224 mm")),
    Sketcher.Constraint("Distance", 4, Q("0.48673 mm")),
])
groove2 = body.newObject("PartDesign::Groove", "Groove001")
groove2.Profile = sketch11
groove2.ReferenceAxis = (sketch11, ["Axis0"])
groove2.Angle = 360

# Sketch on XY plane
sketch12 = body.newObject("Sketcher::SketchObject", "Sketch011")
sketch12.AttachmentSupport = (doc.getObject("XY_Plane"), [""])
sketch12.MapMode = "FlatFace"
sketch12.AttachmentOffset = App.Placement(App.Vector(0, 0, 12.37), App.Rotation())
sketch12.addGeometry([
    Part.LineSegment(App.Vector(2.53, 17, 0), App.Vector(2.31, 17, 0)),  # 0
    Part.LineSegment(App.Vector(2.31, 17, 0), App.Vector(2.31, 12, 0)),  # 1
    Part.LineSegment(App.Vector(2.31, 12, 0), App.Vector(2.78, 12, 0)),  # 2
    Part.LineSegment(App.Vector(2.78, 12, 0), App.Vector(2.78, 16.75, 0)),  # 3
    Part.ArcOfCircle(Part.Circle(App.Vector(2.53, 16.75, 0), App.Vector(0, 0, 1), 0.25), math.radians(0), math.radians(90)),  # 4
], False)
sketch12.addGeometry(Part.LineSegment(App.Vector(2.31, 12, 0), App.Vector(2.31, 17, 0)), True)  # axis
sketch12.addConstraint([
    Sketcher.Constraint("Coincident", 0, 2, 1, 1),
    Sketcher.Constraint("Coincident", 1, 2, 2, 1),
    Sketcher.Constraint("Coincident", 2, 2, 3, 1),
    Sketcher.Constraint("Tangent", 3, 2, 4, 1),
    Sketcher.Constraint("Tangent", 4, 2, 0, 1),
    Sketcher.Constraint("Horizontal", 0),
    Sketcher.Constraint("Vertical", 1),
    Sketcher.Constraint("Horizontal", 2),
    Sketcher.Constraint("Vertical", 3),
    Sketcher.Constraint("Vertical", 5),
    Sketcher.Constraint("Coincident", 5, 1, 1, 2),
    Sketcher.Constraint("Horizontal", 4, 2, 5, 2),
    Sketcher.Constraint("DistanceY", 1, 2, 1, 1, Q("5 mm")),
    Sketcher.Constraint("Radius", 4, Q("0.25 mm")),
    Sketcher.Constraint("DistanceY", -1, 1, 0, 2, Q("17 mm")),
    Sketcher.Constraint("DistanceX", 0, 2, 0, 1, Q("0.225 mm")),
    Sketcher.Constraint("DistanceX", -1, 1, 4, 3, Q("2.53 mm")),
])
revolution4 = body.newObject("PartDesign::Revolution", "Revolution003")
revolution4.Profile = sketch12
revolution4.ReferenceAxis = (sketch12, ["Axis0"])
revolution4.Angle = 360
doc.recompute()

linearpattern = body.newObject("PartDesign::LinearPattern", "LinearPattern")
linearpattern.Originals = [revolution4]
linearpattern.Direction = (doc.getObject("X_Axis"), [""])
linearpattern.Mode = "offset"
linearpattern.Offset = 2.77
linearpattern.Occurrences = 12
body.Tip = linearpattern

# Sketch on XY plane
sketch13 = body.newObject("Sketcher::SketchObject", "Sketch012")
sketch13.AttachmentSupport = (doc.getObject("XY_Plane"), [""])
sketch13.MapMode = "FlatFace"
sketch13.AttachmentOffset = App.Placement(App.Vector(0, 0, 9.53), App.Rotation())
sketch13.addGeometry([
    Part.LineSegment(App.Vector(1.15, 17, 0), App.Vector(0.92, 17, 0)),  # 0
    Part.LineSegment(App.Vector(0.92, 17, 0), App.Vector(0.92, 12, 0)),  # 1
    Part.LineSegment(App.Vector(0.92, 12, 0), App.Vector(1.4, 12, 0)),  # 2
    Part.LineSegment(App.Vector(1.4, 12, 0), App.Vector(1.4, 16.75, 0)),  # 3
    Part.ArcOfCircle(Part.Circle(App.Vector(1.14, 16.75, 0), App.Vector(0, 0, 1), 0.25), math.radians(0), math.radians(90)),  # 4
], False)
sketch13.addGeometry(Part.LineSegment(App.Vector(0.92, 12, 0), App.Vector(0.92, 17, 0)), True)  # axis
sketch13.addConstraint([
    Sketcher.Constraint("Coincident", 0, 2, 1, 1),
    Sketcher.Constraint("Coincident", 1, 2, 2, 1),
    Sketcher.Constraint("Coincident", 2, 2, 3, 1),
    Sketcher.Constraint("Tangent", 3, 2, 4, 1),
    Sketcher.Constraint("Tangent", 4, 2, 0, 1),
    Sketcher.Constraint("Horizontal", 0),
    Sketcher.Constraint("Vertical", 1),
    Sketcher.Constraint("Horizontal", 2),
    Sketcher.Constraint("Vertical", 3),
    Sketcher.Constraint("Vertical", 5),
    Sketcher.Constraint("Coincident", 5, 1, 1, 2),
    Sketcher.Constraint("Horizontal", 4, 2, 5, 2),
    Sketcher.Constraint("DistanceY", 1, 2, 1, 1, Q("5 mm")),
    Sketcher.Constraint("Radius", 4, Q("0.25 mm")),
    Sketcher.Constraint("DistanceY", -1, 1, 0, 2, Q("17 mm")),
    Sketcher.Constraint("DistanceX", 0, 2, 0, 1, Q("0.225 mm")),
    Sketcher.Constraint("DistanceX", -1, 1, 0, 2, Q("0.92 mm")),
])
revolution5 = body.newObject("PartDesign::Revolution", "Revolution004")
revolution5.Profile = sketch13
revolution5.ReferenceAxis = (sketch13, ["Axis0"])
revolution5.Angle = 360
doc.recompute()

linearpattern2 = body.newObject("PartDesign::LinearPattern", "LinearPattern001")
linearpattern2.Originals = [revolution5]
linearpattern2.Direction = (doc.getObject("X_Axis"), [""])
linearpattern2.Mode = "offset"
linearpattern2.Offset = 2.77
linearpattern2.Occurrences = 13
body.Tip = linearpattern2

doc.recompute()
